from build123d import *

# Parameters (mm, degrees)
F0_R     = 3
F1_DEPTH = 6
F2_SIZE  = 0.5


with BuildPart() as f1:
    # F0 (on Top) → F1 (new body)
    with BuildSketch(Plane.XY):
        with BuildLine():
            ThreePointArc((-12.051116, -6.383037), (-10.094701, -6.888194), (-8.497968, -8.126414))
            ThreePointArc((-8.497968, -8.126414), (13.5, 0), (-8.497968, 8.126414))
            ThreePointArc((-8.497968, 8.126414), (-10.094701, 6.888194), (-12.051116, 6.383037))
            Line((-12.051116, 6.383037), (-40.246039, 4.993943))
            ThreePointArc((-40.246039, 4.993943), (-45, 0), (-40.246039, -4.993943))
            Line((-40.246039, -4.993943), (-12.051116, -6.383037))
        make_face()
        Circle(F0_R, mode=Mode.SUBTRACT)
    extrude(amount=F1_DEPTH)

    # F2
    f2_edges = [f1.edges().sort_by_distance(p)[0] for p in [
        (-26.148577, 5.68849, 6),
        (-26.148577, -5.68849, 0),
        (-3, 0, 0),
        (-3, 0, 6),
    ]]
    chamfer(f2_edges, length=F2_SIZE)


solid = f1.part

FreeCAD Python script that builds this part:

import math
import FreeCAD as App
import Part
import Sketcher


def edges_at(feature, points):
    """Names of the edges that pass closest to the given points."""
    edges = feature.Shape.Edges
    near = lambda p: min(range(len(edges)), key=lambda i: edges[i].distToShape(Part.Vertex(*p))[0])
    return sorted({f"Edge{near(p) + 1}" for p in points})

doc = App.newDocument("Part")
body = doc.addObject("PartDesign::Body", "Body")

# Sketch on XY plane
sketch1 = body.newObject("Sketcher::SketchObject", "Sketch")
sketch1.AttachmentSupport = (doc.getObject("XY_Plane"), [""])
sketch1.MapMode = "FlatFace"
sketch1.addGeometry([
    Part.ArcOfCircle(Part.Circle(App.Vector(-12.3, -11.4, 0), App.Vector(0, 0, 1), 5), math.radians(41), math.radians(87)),  # 0
    Part.ArcOfCircle(Part.Circle(App.Vector(1, 0, 0), App.Vector(0, 0, 1), 12.5), math.radians(-139), math.radians(139)),  # 1
    Part.ArcOfCircle(Part.Circle(App.Vector(-12.3, 11.4, 0), App.Vector(0, 0, 1), 5), math.radians(-87), math.radians(-41)),  # 2
    Part.LineSegment(App.Vector(-12.1, 6.4, 0), App.Vector(-40.2, 5, 0)),  # 3
    Part.ArcOfCircle(Part.Circle(App.Vector(-40, 0, 0), App.Vector(0, 0, 1), 5), math.radians(93), math.radians(267)),  # 4
    Part.LineSegment(App.Vector(-40.2, -5, 0), App.Vector(-12.1, -6.4, 0)),  # 5
    Part.Circle(App.Vector(0, 0, 0), App.Vector(0, 0, 1), 3),  # 6
], False)
sketch1.addConstraint([
    Sketcher.Constraint("Tangent", 0, 1, 1, 1),
    Sketcher.Constraint("Tangent", 1, 2, 2, 2),
    Sketcher.Constraint("Tangent", 2, 1, 3, 1),
    Sketcher.Constraint("Tangent", 3, 2, 4, 1),
    Sketcher.Constraint("Tangent", 4, 2, 5, 1),
    Sketcher.Constraint("Tangent", 5, 2, 0, 2),
    Sketcher.Constraint("Coincident", 6, 3, -1, 1),
    Sketcher.Constraint("Equal", 0, 2),
    Sketcher.Constraint("Symmetric", 0, 3, 2, 3, -1),
    Sketcher.Constraint("PointOnObject", 4, 3, -1),
    Sketcher.Constraint("Diameter", 6, 6.0),
    Sketcher.Constraint("Radius", 0, 4.999998),
    Sketcher.Constraint("Radius", 4, 5.0),
    Sketcher.Constraint("Radius", 1, 12.5),
    Sketcher.Constraint("DistanceX", -1, 1, 1, 3, 1.0),
    Sketcher.Constraint("DistanceX", 4, 3, -1, 1, 40.0),
    Sketcher.Constraint("Distance", 3, 28.229121),
])
pad1 = body.newObject("PartDesign::Pad", "Pad")
pad1.Profile = sketch1
pad1.Length = 6
doc.recompute()

chamfer = body.newObject("PartDesign::Chamfer", "Chamfer")
chamfer.Base = (pad1, edges_at(pad1, [
    (-26.149, 5.688, 6),
    (-26.149, -5.688, 0),
    (-3, 0, 0),
    (-3, 0, 6),
]))
chamfer.Size = 0.5

doc.recompute()
